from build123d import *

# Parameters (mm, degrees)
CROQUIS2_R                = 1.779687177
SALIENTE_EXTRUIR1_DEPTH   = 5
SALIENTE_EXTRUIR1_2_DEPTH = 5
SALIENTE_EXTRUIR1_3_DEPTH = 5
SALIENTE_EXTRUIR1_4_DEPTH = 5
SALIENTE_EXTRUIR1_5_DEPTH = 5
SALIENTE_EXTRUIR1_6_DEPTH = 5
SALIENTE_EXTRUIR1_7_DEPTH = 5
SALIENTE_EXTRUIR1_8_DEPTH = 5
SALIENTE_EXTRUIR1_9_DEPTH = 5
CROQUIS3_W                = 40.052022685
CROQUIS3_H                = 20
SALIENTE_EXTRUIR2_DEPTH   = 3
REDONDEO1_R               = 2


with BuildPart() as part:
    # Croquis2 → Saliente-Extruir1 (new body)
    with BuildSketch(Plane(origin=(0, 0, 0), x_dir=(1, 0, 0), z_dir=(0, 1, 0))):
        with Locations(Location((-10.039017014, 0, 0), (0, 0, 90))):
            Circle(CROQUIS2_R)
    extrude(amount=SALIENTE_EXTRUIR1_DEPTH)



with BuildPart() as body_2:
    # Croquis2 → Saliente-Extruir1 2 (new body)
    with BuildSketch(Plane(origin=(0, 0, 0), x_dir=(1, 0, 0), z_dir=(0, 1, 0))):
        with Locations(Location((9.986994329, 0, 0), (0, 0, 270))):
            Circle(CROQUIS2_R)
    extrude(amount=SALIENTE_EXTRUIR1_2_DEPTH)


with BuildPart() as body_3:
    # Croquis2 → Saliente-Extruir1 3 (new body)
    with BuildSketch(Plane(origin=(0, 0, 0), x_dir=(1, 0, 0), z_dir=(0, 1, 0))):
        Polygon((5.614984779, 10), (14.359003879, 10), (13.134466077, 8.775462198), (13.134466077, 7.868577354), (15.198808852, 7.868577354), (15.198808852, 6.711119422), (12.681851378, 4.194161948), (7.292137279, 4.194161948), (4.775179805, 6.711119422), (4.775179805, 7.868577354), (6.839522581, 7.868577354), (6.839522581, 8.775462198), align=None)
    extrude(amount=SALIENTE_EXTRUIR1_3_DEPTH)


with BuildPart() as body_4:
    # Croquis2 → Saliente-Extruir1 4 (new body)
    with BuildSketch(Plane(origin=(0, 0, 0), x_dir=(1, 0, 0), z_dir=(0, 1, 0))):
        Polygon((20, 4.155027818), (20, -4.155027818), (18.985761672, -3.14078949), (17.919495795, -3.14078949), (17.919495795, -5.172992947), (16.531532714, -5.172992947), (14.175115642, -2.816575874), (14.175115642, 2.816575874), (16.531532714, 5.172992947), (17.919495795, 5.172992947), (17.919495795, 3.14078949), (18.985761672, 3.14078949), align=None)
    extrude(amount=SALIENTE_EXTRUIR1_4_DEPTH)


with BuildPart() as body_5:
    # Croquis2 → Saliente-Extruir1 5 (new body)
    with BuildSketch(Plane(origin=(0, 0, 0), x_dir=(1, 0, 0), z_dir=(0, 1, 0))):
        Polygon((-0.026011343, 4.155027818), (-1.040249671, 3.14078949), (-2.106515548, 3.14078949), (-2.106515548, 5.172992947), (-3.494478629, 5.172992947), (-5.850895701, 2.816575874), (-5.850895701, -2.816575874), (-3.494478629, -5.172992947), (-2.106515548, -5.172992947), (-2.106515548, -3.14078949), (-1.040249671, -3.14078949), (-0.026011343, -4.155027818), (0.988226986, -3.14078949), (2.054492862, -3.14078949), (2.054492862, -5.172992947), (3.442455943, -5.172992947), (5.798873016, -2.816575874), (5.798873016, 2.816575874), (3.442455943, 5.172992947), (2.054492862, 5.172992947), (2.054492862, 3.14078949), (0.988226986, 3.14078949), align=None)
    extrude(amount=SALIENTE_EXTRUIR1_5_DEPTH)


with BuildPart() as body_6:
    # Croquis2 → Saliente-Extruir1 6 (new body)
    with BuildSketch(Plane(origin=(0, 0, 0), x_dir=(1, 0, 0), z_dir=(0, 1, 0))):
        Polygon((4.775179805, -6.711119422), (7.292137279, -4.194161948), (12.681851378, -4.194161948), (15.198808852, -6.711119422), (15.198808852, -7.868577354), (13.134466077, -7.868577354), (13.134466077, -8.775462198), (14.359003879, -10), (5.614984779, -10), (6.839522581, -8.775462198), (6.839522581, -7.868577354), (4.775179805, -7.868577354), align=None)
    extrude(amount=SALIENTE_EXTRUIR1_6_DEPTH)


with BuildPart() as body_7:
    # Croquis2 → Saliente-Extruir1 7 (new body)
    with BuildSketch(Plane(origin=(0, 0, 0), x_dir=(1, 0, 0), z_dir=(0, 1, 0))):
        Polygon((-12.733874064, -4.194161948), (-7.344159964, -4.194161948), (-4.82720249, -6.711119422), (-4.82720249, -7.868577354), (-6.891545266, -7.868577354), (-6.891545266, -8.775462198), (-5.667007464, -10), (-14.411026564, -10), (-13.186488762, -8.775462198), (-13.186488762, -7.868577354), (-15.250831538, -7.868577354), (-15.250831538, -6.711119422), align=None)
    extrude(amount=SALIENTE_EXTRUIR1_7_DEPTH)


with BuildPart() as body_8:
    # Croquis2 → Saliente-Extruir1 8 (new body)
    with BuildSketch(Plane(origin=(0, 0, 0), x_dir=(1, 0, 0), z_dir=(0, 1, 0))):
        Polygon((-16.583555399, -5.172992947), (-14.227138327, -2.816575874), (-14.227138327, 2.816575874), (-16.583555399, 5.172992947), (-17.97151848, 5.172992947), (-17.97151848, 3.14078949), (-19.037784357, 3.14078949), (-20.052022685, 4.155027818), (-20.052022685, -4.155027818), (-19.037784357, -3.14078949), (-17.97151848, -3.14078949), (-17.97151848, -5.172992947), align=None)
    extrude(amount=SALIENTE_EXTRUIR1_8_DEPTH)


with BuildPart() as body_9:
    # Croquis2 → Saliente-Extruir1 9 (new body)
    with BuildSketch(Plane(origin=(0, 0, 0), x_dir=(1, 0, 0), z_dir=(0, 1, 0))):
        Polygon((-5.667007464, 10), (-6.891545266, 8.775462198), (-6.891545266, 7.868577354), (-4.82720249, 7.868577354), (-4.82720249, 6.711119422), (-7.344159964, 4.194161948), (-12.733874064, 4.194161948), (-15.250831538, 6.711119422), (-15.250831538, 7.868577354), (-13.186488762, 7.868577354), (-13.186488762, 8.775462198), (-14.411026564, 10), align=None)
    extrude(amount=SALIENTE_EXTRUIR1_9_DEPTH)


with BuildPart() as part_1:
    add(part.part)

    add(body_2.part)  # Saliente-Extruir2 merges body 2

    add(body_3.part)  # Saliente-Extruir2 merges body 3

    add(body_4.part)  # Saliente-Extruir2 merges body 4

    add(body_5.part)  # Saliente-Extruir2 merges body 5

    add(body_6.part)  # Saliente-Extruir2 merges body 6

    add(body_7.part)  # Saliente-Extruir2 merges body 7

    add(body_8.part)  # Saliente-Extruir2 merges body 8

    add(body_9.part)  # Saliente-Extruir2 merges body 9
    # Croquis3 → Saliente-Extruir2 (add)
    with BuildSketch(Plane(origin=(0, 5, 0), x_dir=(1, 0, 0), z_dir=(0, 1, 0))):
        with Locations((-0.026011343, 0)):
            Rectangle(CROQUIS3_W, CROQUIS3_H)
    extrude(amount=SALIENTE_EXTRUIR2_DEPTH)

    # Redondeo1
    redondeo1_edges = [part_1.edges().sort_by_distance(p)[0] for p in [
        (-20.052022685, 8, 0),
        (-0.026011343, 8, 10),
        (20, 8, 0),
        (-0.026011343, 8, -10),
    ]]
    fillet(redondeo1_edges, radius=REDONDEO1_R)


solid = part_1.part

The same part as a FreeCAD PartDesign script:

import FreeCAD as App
import Part
import Sketcher
from FreeCAD import Vector
Q = App.Units.Quantity


def edges_at(feature, points):
    """Names of the edges that pass closest to the given points."""
    edges = feature.Shape.Edges
    near = lambda p: min(range(len(edges)), key=lambda i: edges[i].distToShape(Part.Vertex(*p))[0])
    return sorted({f"Edge{near(p) + 1}" for p in points})

doc = App.newDocument("Part")
params = doc.addObject("Spreadsheet::Sheet", "Params")
for row, (alias, value) in enumerate([
    ("pad1_length", "5 mm"),
    ("pad2_length", "5 mm"),
    ("pad3_length", "5 mm"),
    ("pad4_length", "5 mm"),
    ("pad5_length", "5 mm"),
    ("pad6_length", "5 mm"),
    ("pad7_length", "5 mm"),
    ("pad8_length", "5 mm"),
    ("pad9_length", "5 mm"),
    ("sketch10_height", "20 mm"),
    ("pad10_length", "3 mm"),
    ("fillet_radius", "2 mm"),
], start=1):
    params.set(f"A{row}", alias)
    params.set(f"B{row}", "=" + value)
    params.setAlias(f"B{row}", alias)

body = doc.addObject("PartDesign::Body", "Body")

# Sketch on XZ plane
sketch1 = body.newObject("Sketcher::SketchObject", "Sketch")
sketch1.AttachmentSupport = (doc.getObject("XZ_Plane"), [""])
sketch1.MapMode = "FlatFace"
sketch1.addGeometry(Part.Circle(Vector(-10.039017, 0, 0), Vector(0, 0, 1), 1.779687), False)
sketch1.addConstraint(Sketcher.Constraint("PointOnObject", 0, 3, -1))
sketch1.addConstraint(Sketcher.Constraint("Diameter", 0, Q("3.559374 mm")))
sketch1.addConstraint(Sketcher.Constraint("DistanceX", 0, 3, -1, 1, Q("10.039017 mm")))
pad1 = body.newObject("PartDesign::Pad", "Pad")
pad1.Profile = sketch1
pad1.setExpression("Length", "Params.pad1_length")
pad1.Reversed = True
body2 = doc.addObject("PartDesign::Body", "Body001")

# Sketch on XZ plane
sketch2 = body2.newObject("Sketcher::SketchObject", "Sketch001")
sketch2.AttachmentSupport = (doc.getObject("XZ_Plane001"), [""])
sketch2.MapMode = "FlatFace"
sketch2.addGeometry(Part.Circle(Vector(9.986994, 0, 0), Vector(0, 0, 1), 1.779687), False)
sketch2.addConstraint(Sketcher.Constraint("PointOnObject", 0, 3, -1))
sketch2.addConstraint(Sketcher.Constraint("Diameter", 0, Q("3.559374 mm")))
sketch2.addConstraint(Sketcher.Constraint("DistanceX", -1, 1, 0, 3, Q("9.986994 mm")))
pad2 = body2.newObject("PartDesign::Pad", "Pad001")
pad2.Profile = sketch2
pad2.setExpression("Length", "Params.pad2_length")
pad2.Reversed = True
body3 = doc.addObject("PartDesign::Body", "Body002")

# Sketch on XZ plane
sketch3 = body3.newObject("Sketcher::SketchObject", "Sketch002")
sketch3.AttachmentSupport = (doc.getObject("XZ_Plane002"), [""])
sketch3.MapMode = "FlatFace"
sketch3.addGeometry(Part.LineSegment(Vector(14.359004, -10, 0), Vector(5.614985, -10, 0)), False)
sketch3.addGeometry(Part.LineSegment(Vector(5.614985, -10, 0), Vector(6.839523, -8.775462, 0)), False)
sketch3.addGeometry(Part.LineSegment(Vector(6.839523, -8.775462, 0), Vector(6.839523, -7.868577, 0)), False)
sketch3.addGeometry(Part.LineSegment(Vector(6.839523, -7.868577, 0), Vector(4.77518, -7.868577, 0)), False)
sketch3.addGeometry(Part.LineSegment(Vector(4.77518, -7.868577, 0), Vector(4.77518, -6.711119, 0)), False)
sketch3.addGeometry(Part.LineSegment(Vector(4.77518, -6.711119, 0), Vector(7.292137, -4.194162, 0)), False)
sketch3.addGeometry(Part.LineSegment(Vector(7.292137, -4.194162, 0), Vector(12.681851, -4.194162, 0)), False)
sketch3.addGeometry(Part.LineSegment(Vector(12.681851, -4.194162, 0), Vector(15.198809, -6.711119, 0)), False)
sketch3.addGeometry(Part.LineSegment(Vector(15.198809, -6.711119, 0), Vector(15.198809, -7.868577, 0)), False)
sketch3.addGeometry(Part.LineSegment(Vector(15.198809, -7.868577, 0), Vector(13.134466, -7.868577, 0)), False)
sketch3.addGeometry(Part.LineSegment(Vector(13.134466, -7.868577, 0), Vector(13.134466, -8.775462, 0)), False)
sketch3.addGeometry(Part.LineSegment(Vector(13.134466, -8.775462, 0), Vector(14.359004, -10, 0)), False)
sketch3.addConstraint(Sketcher.Constraint("Coincident", 0, 2, 1, 1))
sketch3.addConstraint(Sketcher.Constraint("Coincident", 1, 2, 2, 1))
sketch3.addConstraint(Sketcher.Constraint("Coincident", 2, 2, 3, 1))
sketch3.addConstraint(Sketcher.Constraint("Coincident", 3, 2, 4, 1))
sketch3.addConstraint(Sketcher.Constraint("Coincident", 4, 2, 5, 1))
sketch3.addConstraint(Sketcher.Constraint("Coincident", 5, 2, 6, 1))
sketch3.addConstraint(Sketcher.Constraint("Coincident", 6, 2, 7, 1))
sketch3.addConstraint(Sketcher.Constraint("Coincident", 7, 2, 8, 1))
sketch3.addConstraint(Sketcher.Constraint("Coincident", 8, 2, 9, 1))
sketch3.addConstraint(Sketcher.Constraint("Coincident", 9, 2, 10, 1))
sketch3.addConstraint(Sketcher.Constraint("Coincident", 10, 2, 11, 1))
sketch3.addConstraint(Sketcher.Constraint("Coincident", 11, 2, 0, 1))
sketch3.addConstraint(Sketcher.Constraint("Horizontal", 0))
sketch3.addConstraint(Sketcher.Constraint("Vertical", 2))
sketch3.addConstraint(Sketcher.Constraint("Horizontal", 3))
sketch3.addConstraint(Sketcher.Constraint("Vertical", 4))
sketch3.addConstraint(Sketcher.Constraint("Horizontal", 6))
sketch3.addConstraint(Sketcher.Constraint("Vertical", 8))
sketch3.addConstraint(Sketcher.Constraint("Horizontal", 9))
sketch3.addConstraint(Sketcher.Constraint("Vertical", 10))
sketch3.addConstraint(Sketcher.Constraint("Parallel", 1, 5))
sketch3.addConstraint(Sketcher.Constraint("Perpendicular", 5, 7))
sketch3.addConstraint(Sketcher.Constraint("Parallel", 7, 11))
sketch3.addConstraint(Sketcher.Constraint("Horizontal", 4, 2, 7, 2))
sketch3.addConstraint(Sketcher.Constraint("Horizontal", 3, 2, 8, 2))
sketch3.addConstraint(Sketcher.Constraint("Horizontal", 1, 2, 10, 2))
sketch3.addConstraint(Sketcher.Constraint("Equal", 3, 9))
sketch3.addConstraint(Sketcher.Constraint("Equal", 5, 7))
sketch3.addConstraint(Sketcher.Constraint("DistanceY", 0, 2, -1, 1, Q("10 mm")))
sketch3.addConstraint(Sketcher.Constraint("DistanceX", 0, 2, 0, 1, Q("8.744019 mm")))
sketch3.addConstraint(Sketcher.Constraint("DistanceY", 1, 2, 5, 2, Q("4.5813 mm")))
sketch3.addConstraint(Sketcher.Constraint("DistanceX", 3, 2, 3, 1, Q("2.064343 mm")))
sketch3.addConstraint(Sketcher.Constraint("DistanceX", 6, 1, 6, 2, Q("5.389714 mm")))
sketch3.addConstraint(Sketcher.Constraint("DistanceY", 2, 1, 2, 2, Q("0.906885 mm")))
sketch3.addConstraint(Sketcher.Constraint("DistanceY", 4, 1, 4, 2, Q("1.157458 mm")))
sketch3.addConstraint(Sketcher.Constraint("DistanceX", -1, 1, 3, 2, Q("4.77518 mm")))
pad3 = body3.newObject("PartDesign::Pad", "Pad002")
pad3.Profile = sketch3
pad3.setExpression("Length", "Params.pad3_length")
pad3.Reversed = True
body4 = doc.addObject("PartDesign::Body", "Body003")

# Sketch on XZ plane
sketch4 = body4.newObject("Sketcher::SketchObject", "Sketch003")
sketch4.AttachmentSupport = (doc.getObject("XZ_Plane003"), [""])
sketch4.MapMode = "FlatFace"
sketch4.addGeometry(Part.LineSegment(Vector(20, 4.155028, 0), Vector(20, -4.155028, 0)), False)
sketch4.addGeometry(Part.LineSegment(Vector(20, -4.155028, 0), Vector(18.985762, -3.140789, 0)), False)
sketch4.addGeometry(Part.LineSegment(Vector(18.985762, -3.140789, 0), Vector(17.919496, -3.140789, 0)), False)
sketch4.addGeometry(Part.LineSegment(Vector(17.919496, -3.140789, 0), Vector(17.919496, -5.172993, 0)), False)
sketch4.addGeometry(Part.LineSegment(Vector(17.919496, -5.172993, 0), Vector(16.531533, -5.172993, 0)), False)
sketch4.addGeometry(Part.LineSegment(Vector(16.531533, -5.172993, 0), Vector(14.175116, -2.816576, 0)), False)
sketch4.addGeometry(Part.LineSegment(Vector(14.175116, -2.816576, 0), Vector(14.175116, 2.816576, 0)), False)
sketch4.addGeometry(Part.LineSegment(Vector(14.175116, 2.816576, 0), Vector(16.531533, 5.172993, 0)), False)
sketch4.addGeometry(Part.LineSegment(Vector(16.531533, 5.172993, 0), Vector(17.919496, 5.172993, 0)), False)
sketch4.addGeometry(Part.LineSegment(Vector(17.919496, 5.172993, 0), Vector(17.919496, 3.140789, 0)), False)
sketch4.addGeometry(Part.LineSegment(Vector(17.919496, 3.140789, 0), Vector(18.985762, 3.140789, 0)), False)
sketch4.addGeometry(Part.LineSegment(Vector(18.985762, 3.140789, 0), Vector(20, 4.155028, 0)), False)
sketch4.addConstraint(Sketcher.Constraint("Coincident", 0, 2, 1, 1))
sketch4.addConstraint(Sketcher.Constraint("Coincident", 1, 2, 2, 1))
sketch4.addConstraint(Sketcher.Constraint("Coincident", 2, 2, 3, 1))
sketch4.addConstraint(Sketcher.Constraint("Coincident", 3, 2, 4, 1))
sketch4.addConstraint(Sketcher.Constraint("Coincident", 4, 2, 5, 1))
sketch4.addConstraint(Sketcher.Constraint("Coincident", 5, 2, 6, 1))
sketch4.addConstraint(Sketcher.Constraint("Coincident", 6, 2, 7, 1))
sketch4.addConstraint(Sketcher.Constraint("Coincident", 7, 2, 8, 1))
sketch4.addConstraint(Sketcher.Constraint("Coincident", 8, 2, 9, 1))
sketch4.addConstraint(Sketcher.Constraint("Coincident", 9, 2, 10, 1))
sketch4.addConstraint(Sketcher.Constraint("Coincident", 10, 2, 11, 1))
sketch4.addConstraint(Sketcher.Constraint("Coincident", 11, 2, 0, 1))
sketch4.addConstraint(Sketcher.Constraint("Vertical", 0))
sketch4.addConstraint(Sketcher.Constraint("Horizontal", 2))
sketch4.addConstraint(Sketcher.Constraint("Vertical", 3))
sketch4.addConstraint(Sketcher.Constraint("Horizontal", 4))
sketch4.addConstraint(Sketcher.Constraint("Vertical", 6))
sketch4.addConstraint(Sketcher.Constraint("Horizontal", 8))
sketch4.addConstraint(Sketcher.Constraint("Vertical", 9))
sketch4.addConstraint(Sketcher.Constraint("Horizontal", 10))
sketch4.addConstraint(Sketcher.Constraint("Symmetric", 4, 2, 7, 2, -1))
sketch4.addConstraint(Sketcher.Constraint("Symmetric", 2, 2, 9, 2, -1))
sketch4.addConstraint(Sketcher.Constraint("Parallel", 1, 5))
sketch4.addConstraint(Sketcher.Constraint("Perpendicular", 5, 7))
sketch4.addConstraint(Sketcher.Constraint("Parallel", 7, 11))
sketch4.addConstraint(Sketcher.Constraint("Vertical", 1, 2, 10, 2))
sketch4.addConstraint(Sketcher.Constraint("Equal", 5, 7))
sketch4.addConstraint(Sketcher.Constraint("DistanceX", -1, 1, 0, 2, Q("20 mm")))
sketch4.addConstraint(Sketcher.Constraint("DistanceY", 6, 1, 6, 2, Q("5.633152 mm")))
sketch4.addConstraint(Sketcher.Constraint("Distance", 1, Q("1.43435 mm")))
sketch4.addConstraint(Sketcher.Constraint("DistanceX", 2, 2, 2, 1, Q("1.066266 mm")))
sketch4.addConstraint(Sketcher.Constraint("DistanceX", 4, 2, 4, 1, Q("1.387963 mm")))
sketch4.addConstraint(Sketcher.Constraint("DistanceY", 0, 2, 0, 1, Q("8.310056 mm")))
sketch4.addConstraint(Sketcher.Constraint("DistanceY", 3, 2, 3, 1, Q("2.032203 mm")))
pad4 = body4.newObject("PartDesign::Pad", "Pad003")
pad4.Profile = sketch4
pad4.setExpression("Length", "Params.pad4_length")
pad4.Reversed = True
body5 = doc.addObject("PartDesign::Body", "Body004")

# Sketch on XZ plane
sketch5 = body5.newObject("Sketcher::SketchObject", "Sketch004")
sketch5.AttachmentSupport = (doc.getObject("XZ_Plane004"), [""])
sketch5.MapMode = "FlatFace"
sketch5.addGeometry(Part.LineSegment(Vector(-0.026011, -4.155028, 0), Vector(-1.04025, -3.140789, 0)), False)
sketch5.addGeometry(Part.LineSegment(Vector(-1.04025, -3.140789, 0), Vector(-2.106516, -3.140789, 0)), False)
sketch5.addGeometry(Part.LineSegment(Vector(-2.106516, -3.140789, 0), Vector(-2.106516, -5.172993, 0)), False)
sketch5.addGeometry(Part.LineSegment(Vector(-2.106516, -5.172993, 0), Vector(-3.494479, -5.172993, 0)), False)
sketch5.addGeometry(Part.LineSegment(Vector(-3.494479, -5.172993, 0), Vector(-5.850896, -2.816576, 0)), False)
sketch5.addGeometry(Part.LineSegment(Vector(-5.850896, -2.816576, 0), Vector(-5.850896, 2.816576, 0)), False)
sketch5.addGeometry(Part.LineSegment(Vector(-5.850896, 2.816576, 0), Vector(-3.494479, 5.172993, 0)), False)
sketch5.addGeometry(Part.LineSegment(Vector(-3.494479, 5.172993, 0), Vector(-2.106516, 5.172993, 0)), False)
sketch5.addGeometry(Part.LineSegment(Vector(-2.106516, 5.172993, 0), Vector(-2.106516, 3.140789, 0)), False)
sketch5.addGeometry(Part.LineSegment(Vector(-2.106516, 3.140789, 0), Vector(-1.04025, 3.140789, 0)), False)
sketch5.addGeometry(Part.LineSegment(Vector(-1.04025, 3.140789, 0), Vector(-0.026011, 4.155028, 0)), False)
sketch5.addGeometry(Part.LineSegment(Vector(-0.026011, 4.155028, 0), Vector(0.988227, 3.140789, 0)), False)
sketch5.addGeometry(Part.LineSegment(Vector(0.988227, 3.140789, 0), Vector(2.054493, 3.140789, 0)), False)
sketch5.addGeometry(Part.LineSegment(Vector(2.054493, 3.140789, 0), Vector(2.054493, 5.172993, 0)), False)
sketch5.addGeometry(Part.LineSegment(Vector(2.054493, 5.172993, 0), Vector(3.442456, 5.172993, 0)), False)
sketch5.addGeometry(Part.LineSegment(Vector(3.442456, 5.172993, 0), Vector(5.798873, 2.816576, 0)), False)
sketch5.addGeometry(Part.LineSegment(Vector(5.798873, 2.816576, 0), Vector(5.798873, -2.816576, 0)), False)
sketch5.addGeometry(Part.LineSegment(Vector(5.798873, -2.816576, 0), Vector(3.442456, -5.172993, 0)), False)
sketch5.addGeometry(Part.LineSegment(Vector(3.442456, -5.172993, 0), Vector(2.054493, -5.172993, 0)), False)
sketch5.addGeometry(Part.LineSegment(Vector(2.054493, -5.172993, 0), Vector(2.054493, -3.140789, 0)), False)
sketch5.addGeometry(Part.LineSegment(Vector(2.054493, -3.140789, 0), Vector(0.988227, -3.140789, 0)), False)
sketch5.addGeometry(Part.LineSegment(Vector(0.988227, -3.140789, 0), Vector(-0.026011, -4.155028, 0)), False)
sketch5.addConstraint(Sketcher.Constraint("Coincident", 0, 2, 1, 1))
sketch5.addConstraint(Sketcher.Constraint("Coincident", 1, 2, 2, 1))
sketch5.addConstraint(Sketcher.Constraint("Coincident", 2, 2, 3, 1))
sketch5.addConstraint(Sketcher.Constraint("Coincident", 3, 2, 4, 1))
sketch5.addConstraint(Sketcher.Constraint("Coincident", 4, 2, 5, 1))
sketch5.addConstraint(Sketcher.Constraint("Coincident", 5, 2, 6, 1))
sketch5.addConstraint(Sketcher.Constraint("Coincident", 6, 2, 7, 1))
sketch5.addConstraint(Sketcher.Constraint("Coincident", 7, 2, 8, 1))
sketch5.addConstraint(Sketcher.Constraint("Coincident", 8, 2, 9, 1))
sketch5.addConstraint(Sketcher.Constraint("Coincident", 9, 2, 10, 1))
sketch5.addConstraint(Sketcher.Constraint("Coincident", 10, 2, 11, 1))
sketch5.addConstraint(Sketcher.Constraint("Coincident", 11, 2, 12, 1))
sketch5.addConstraint(Sketcher.Constraint("Coincident", 12, 2, 13, 1))
sketch5.addConstraint(Sketcher.Constraint("Coincident", 13, 2, 14, 1))
sketch5.addConstraint(Sketcher.Constraint("Coincident", 14, 2, 15, 1))
sketch5.addConstraint(Sketcher.Constraint("Coincident", 15, 2, 16, 1))
sketch5.addConstraint(Sketcher.Constraint("Coincident", 16, 2, 17, 1))
sketch5.addConstraint(Sketcher.Constraint("Coincident", 17, 2, 18, 1))
sketch5.addConstraint(Sketcher.Constraint("Coincident", 18, 2, 19, 1))
sketch5.addConstraint(Sketcher.Constraint("Coincident", 19, 2, 20, 1))
sketch5.addConstraint(Sketcher.Constraint("Coincident", 20, 2, 21, 1))
sketch5.addConstraint(Sketcher.Constraint("Coincident", 21, 2, 0, 1))
sketch5.addConstraint(Sketcher.Constraint("Horizontal", 1))
sketch5.addConstraint(Sketcher.Constraint("Vertical", 2))
sketch5.addConstraint(Sketcher.Constraint("Horizontal", 3))
sketch5.addConstraint(Sketcher.Constraint("Vertical", 5))
sketch5.addConstraint(Sketcher.Constraint("Horizontal", 7))
sketch5.addConstraint(Sketcher.Constraint("Vertical", 8))
sketch5.addConstraint(Sketcher.Constraint("Horizontal", 9))
sketch5.addConstraint(Sketcher.Constraint("Horizontal", 12))
sketch5.addConstraint(Sketcher.Constraint("Vertical", 13))
sketch5.addConstraint(Sketcher.Constraint("Horizontal", 14))
sketch5.addConstraint(Sketcher.Constraint("Vertical", 16))
sketch5.addConstraint(Sketcher.Constraint("Horizontal", 18))
sketch5.addConstraint(Sketcher.Constraint("Vertical", 19))
sketch5.addConstraint(Sketcher.Constraint("Horizontal", 20))
sketch5.addConstraint(Sketcher.Constraint("Symmetric", 3, 2, 6, 2, -1))
sketch5.addConstraint(Sketcher.Constraint("Symmetric", 1, 2, 8, 2, -1))
sketch5.addConstraint(Sketcher.Constraint("Symmetric", 14, 2, 17, 2, -1))
sketch5.addConstraint(Sketcher.Constraint("Symmetric", 12, 2, 19, 2, -1))
sketch5.addConstraint(Sketcher.Constraint("Symmetric", 10, 2, 21, 2, -1))
sketch5.addConstraint(Sketcher.Constraint("Parallel", 0, 4))
sketch5.addConstraint(Sketcher.Constraint("Perpendicular", 4, 6))
sketch5.addConstraint(Sketcher.Constraint("Parallel", 6, 10))
sketch5.addConstraint(Sketcher.Constraint("Perpendicular", 10, 11))
sketch5.addConstraint(Sketcher.Constraint("Parallel", 11, 15))
sketch5.addConstraint(Sketcher.Constraint("Perpendicular", 15, 17))
sketch5.addConstraint(Sketcher.Constraint("Parallel", 17, 21))
sketch5.addConstraint(Sketcher.Constraint("Horizontal", 9, 2, 11, 2))
sketch5.addConstraint(Sketcher.Constraint("Horizontal", 7, 2, 13, 2))
sketch5.addConstraint(Sketcher.Constraint("Horizontal", 5, 2, 15, 2))
sketch5.addConstraint(Sketcher.Constraint("Horizontal", 4, 2, 16, 2))
sketch5.addConstraint(Sketcher.Constraint("Equal", 9, 12))
sketch5.addConstraint(Sketcher.Constraint("Equal", 7, 14))
sketch5.addConstraint(Sketcher.Constraint("DistanceY", 5, 1, 5, 2, Q("5.633152 mm")))
sketch5.addConstraint(Sketcher.Constraint("Distance", 0, Q("1.43435 mm")))
sketch5.addConstraint(Sketcher.Constraint("DistanceX", 1, 2, 1, 1, Q("1.066266 mm")))
sketch5.addConstraint(Sketcher.Constraint("DistanceX", 3, 2, 3, 1, Q("1.387963 mm")))
sketch5.addConstraint(Sketcher.Constraint("DistanceY", 2, 2, 2, 1, Q("2.032203 mm")))
sketch5.addConstraint(Sketcher.Constraint("DistanceX", 0, 2, -1, 1, Q("1.04025 mm")))
sketch5.addConstraint(Sketcher.Constraint("DistanceY", 0, 2, -1, 1, Q("3.140789 mm")))
pad5 = body5.newObject("PartDesign::Pad", "Pad004")
pad5.Profile = sketch5
pad5.setExpression("Length", "Params.pad5_length")
pad5.Reversed = True
body6 = doc.addObject("PartDesign::Body", "Body005")

# Sketch on XZ plane
sketch6 = body6.newObject("Sketcher::SketchObject", "Sketch005")
sketch6.AttachmentSupport = (doc.getObject("XZ_Plane005"), [""])
sketch6.MapMode = "FlatFace"
sketch6.addGeometry(Part.LineSegment(Vector(7.292137, 4.194162, 0), Vector(4.77518, 6.711119, 0)), False)
sketch6.addGeometry(Part.LineSegment(Vector(4.77518, 6.711119, 0), Vector(4.77518, 7.868577, 0)), False)
sketch6.addGeometry(Part.LineSegment(Vector(4.77518, 7.868577, 0), Vector(6.839523, 7.868577, 0)), False)
sketch6.addGeometry(Part.LineSegment(Vector(6.839523, 7.868577, 0), Vector(6.839523, 8.775462, 0)), False)
sketch6.addGeometry(Part.LineSegment(Vector(6.839523, 8.775462, 0), Vector(5.614985, 10, 0)), False)
sketch6.addGeometry(Part.LineSegment(Vector(5.614985, 10, 0), Vector(14.359004, 10, 0)), False)
sketch6.addGeometry(Part.LineSegment(Vector(14.359004, 10, 0), Vector(13.134466, 8.775462, 0)), False)
sketch6.addGeometry(Part.LineSegment(Vector(13.134466, 8.775462, 0), Vector(13.134466, 7.868577, 0)), False)
sketch6.addGeometry(Part.LineSegment(Vector(13.134466, 7.868577, 0), Vector(15.198809, 7.868577, 0)), False)
sketch6.addGeometry(Part.LineSegment(Vector(15.198809, 7.868577, 0), Vector(15.198809, 6.711119, 0)), False)
sketch6.addGeometry(Part.LineSegment(Vector(15.198809, 6.711119, 0), Vector(12.681851, 4.194162, 0)), False)
sketch6.addGeometry(Part.LineSegment(Vector(12.681851, 4.194162, 0), Vector(7.292137, 4.194162, 0)), False)
sketch6.addConstraint(Sketcher.Constraint("Coincident", 0, 2, 1, 1))
sketch6.addConstraint(Sketcher.Constraint("Coincident", 1, 2, 2, 1))
sketch6.addConstraint(Sketcher.Constraint("Coincident", 2, 2, 3, 1))
sketch6.addConstraint(Sketcher.Constraint("Coincident", 3, 2, 4, 1))
sketch6.addConstraint(Sketcher.Constraint("Coincident", 4, 2, 5, 1))
sketch6.addConstraint(Sketcher.Constraint("Coincident", 5, 2, 6, 1))
sketch6.addConstraint(Sketcher.Constraint("Coincident", 6, 2, 7, 1))
sketch6.addConstraint(Sketcher.Constraint("Coincident", 7, 2, 8, 1))
sketch6.addConstraint(Sketcher.Constraint("Coincident", 8, 2, 9, 1))
sketch6.addConstraint(Sketcher.Constraint("Coincident", 9, 2, 10, 1))
sketch6.addConstraint(Sketcher.Constraint("Coincident", 10, 2, 11, 1))
sketch6.addConstraint(Sketcher.Constraint("Coincident", 11, 2, 0, 1))
sketch6.addConstraint(Sketcher.Constraint("Vertical", 1))
sketch6.addConstraint(Sketcher.Constraint("Horizontal", 2))
sketch6.addConstraint(Sketcher.Constraint("Vertical", 3))
sketch6.addConstraint(Sketcher.Constraint("Horizontal", 5))
sketch6.addConstraint(Sketcher.Constraint("Vertical", 7))
sketch6.addConstraint(Sketcher.Constraint("Horizontal", 8))
sketch6.addConstraint(Sketcher.Constraint("Vertical", 9))
sketch6.addConstraint(Sketcher.Constraint("Horizontal", 11))
sketch6.addConstraint(Sketcher.Constraint("Parallel", 0, 4))
sketch6.addConstraint(Sketcher.Constraint("Perpendicular", 4, 6))
sketch6.addConstraint(Sketcher.Constraint("Parallel", 6, 10))
sketch6.addConstraint(Sketcher.Constraint("Horizontal", 3, 2, 6, 2))
sketch6.addConstraint(Sketcher.Constraint("Horizontal", 2, 2, 7, 2))
sketch6.addConstraint(Sketcher.Constraint("Horizontal", 0, 2, 9, 2))
sketch6.addConstraint(Sketcher.Constraint("Equal", 2, 8))
sketch6.addConstraint(Sketcher.Constraint("Equal", 4, 6))
sketch6.addConstraint(Sketcher.Constraint("DistanceY", -1, 1, 4, 2, Q("10 mm")))
sketch6.addConstraint(Sketcher.Constraint("DistanceX", 5, 1, 5, 2, Q("8.744019 mm")))
sketch6.addConstraint(Sketcher.Constraint("DistanceY", 10, 2, 6, 2, Q("4.5813 mm")))
sketch6.addConstraint(Sketcher.Constraint("DistanceX", 2, 1, 2, 2, Q("2.064343 mm")))
sketch6.addConstraint(Sketcher.Constraint("DistanceX", 11, 2, 11, 1, Q("5.389714 mm")))
sketch6.addConstraint(Sketcher.Constraint("DistanceY", 1, 1, 1, 2, Q("1.157458 mm")))
sketch6.addConstraint(Sketcher.Constraint("DistanceY", 3, 1, 3, 2, Q("0.906885 mm")))
sketch6.addConstraint(Sketcher.Constraint("DistanceX", -1, 1, 0, 2, Q("4.77518 mm")))
pad6 = body6.newObject("PartDesign::Pad", "Pad005")
pad6.Profile = sketch6
pad6.setExpression("Length", "Params.pad6_length")
pad6.Reversed = True
body7 = doc.addObject("PartDesign::Body", "Body006")

# Sketch on XZ plane
sketch7 = body7.newObject("Sketcher::SketchObject", "Sketch006")
sketch7.AttachmentSupport = (doc.getObject("XZ_Plane006"), [""])
sketch7.MapMode = "FlatFace"
sketch7.addGeometry(Part.LineSegment(Vector(-7.34416, 4.194162, 0), Vector(-12.733874, 4.194162, 0)), False)
sketch7.addGeometry(Part.LineSegment(Vector(-12.733874, 4.194162, 0), Vector(-15.250832, 6.711119, 0)), False)
sketch7.addGeometry(Part.LineSegment(Vector(-15.250832, 6.711119, 0), Vector(-15.250832, 7.868577, 0)), False)
sketch7.addGeometry(Part.LineSegment(Vector(-15.250832, 7.868577, 0), Vector(-13.186489, 7.868577, 0)), False)
sketch7.addGeometry(Part.LineSegment(Vector(-13.186489, 7.868577, 0), Vector(-13.186489, 8.775462, 0)), False)
sketch7.addGeometry(Part.LineSegment(Vector(-13.186489, 8.775462, 0), Vector(-14.411027, 10, 0)), False)
sketch7.addGeometry(Part.LineSegment(Vector(-14.411027, 10, 0), Vector(-5.667007, 10, 0)), False)
sketch7.addGeometry(Part.LineSegment(Vector(-5.667007, 10, 0), Vector(-6.891545, 8.775462, 0)), False)
sketch7.addGeometry(Part.LineSegment(Vector(-6.891545, 8.775462, 0), Vector(-6.891545, 7.868577, 0)), False)
sketch7.addGeometry(Part.LineSegment(Vector(-6.891545, 7.868577, 0), Vector(-4.827202, 7.868577, 0)), False)
sketch7.addGeometry(Part.LineSegment(Vector(-4.827202, 7.868577, 0), Vector(-4.827202, 6.711119, 0)), False)
sketch7.addGeometry(Part.LineSegment(Vector(-4.827202, 6.711119, 0), Vector(-7.34416, 4.194162, 0)), False)
sketch7.addConstraint(Sketcher.Constraint("Coincident", 0, 2, 1, 1))
sketch7.addConstraint(Sketcher.Constraint("Coincident", 1, 2, 2, 1))
sketch7.addConstraint(Sketcher.Constraint("Coincident", 2, 2, 3, 1))
sketch7.addConstraint(Sketcher.Constraint("Coincident", 3, 2, 4, 1))
sketch7.addConstraint(Sketcher.Constraint("Coincident", 4, 2, 5, 1))
sketch7.addConstraint(Sketcher.Constraint("Coincident", 5, 2, 6, 1))
sketch7.addConstraint(Sketcher.Constraint("Coincident", 6, 2, 7, 1))
sketch7.addConstraint(Sketcher.Constraint("Coincident", 7, 2, 8, 1))
sketch7.addConstraint(Sketcher.Constraint("Coincident", 8, 2, 9, 1))
sketch7.addConstraint(Sketcher.Constraint("Coincident", 9, 2, 10, 1))
sketch7.addConstraint(Sketcher.Constraint("Coincident", 10, 2, 11, 1))
sketch7.addConstraint(Sketcher.Constraint("Coincident", 11, 2, 0, 1))
sketch7.addConstraint(Sketcher.Constraint("Horizontal", 0))
sketch7.addConstraint(Sketcher.Constraint("Vertical", 2))
sketch7.addConstraint(Sketcher.Constraint("Horizontal", 3))
sketch7.addConstraint(Sketcher.Constraint("Vertical", 4))
sketch7.addConstraint(Sketcher.Constraint("Horizontal", 6))
sketch7.addConstraint(Sketcher.Constraint("Vertical", 8))
sketch7.addConstraint(Sketcher.Constraint("Horizontal", 9))
sketch7.addConstraint(Sketcher.Constraint("Vertical", 10))
sketch7.addConstraint(Sketcher.Constraint("Parallel", 1, 5))
sketch7.addConstraint(Sketcher.Constraint("Perpendicular", 5, 7))
sketch7.addConstraint(Sketcher.Constraint("Parallel", 7, 11))
sketch7.addConstraint(Sketcher.Constraint("Horizontal", 4, 2, 7, 2))
sketch7.addConstraint(Sketcher.Constraint("Horizontal", 3, 2, 8, 2))
sketch7.addConstraint(Sketcher.Constraint("Horizontal", 1, 2, 10, 2))
sketch7.addConstraint(Sketcher.Constraint("Equal", 3, 9))
sketch7.addConstraint(Sketcher.Constraint("Equal", 5, 7))
sketch7.addConstraint(Sketcher.Constraint("DistanceY", -1, 1, 5, 2, Q("10 mm")))
sketch7.addConstraint(Sketcher.Constraint("DistanceX", 6, 1, 6, 2, Q("8.744019 mm")))
sketch7.addConstraint(Sketcher.Constraint("DistanceY", 0, 2, 4, 2, Q("4.5813 mm")))
sketch7.addConstraint(Sketcher.Constraint("DistanceX", 0, 2, 0, 1, Q("5.389714 mm")))
sketch7.addConstraint(Sketcher.Constraint("DistanceX", 3, 1, 3, 2, Q("2.064343 mm")))
sketch7.addConstraint(Sketcher.Constraint("DistanceY", 2, 1, 2, 2, Q("1.157458 mm")))
sketch7.addConstraint(Sketcher.Constraint("DistanceY", 4, 1, 4, 2, Q("0.906885 mm")))
sketch7.addConstraint(Sketcher.Constraint("DistanceX", 1, 2, -1, 1, Q("15.250832 mm")))
pad7 = body7.newObject("PartDesign::Pad", "Pad006")
pad7.Profile = sketch7
pad7.setExpression("Length", "Params.pad7_length")
pad7.Reversed = True
body8 = doc.addObject("PartDesign::Body", "Body007")

# Sketch on XZ plane
sketch8 = body8.newObject("Sketcher::SketchObject", "Sketch007")
sketch8.AttachmentSupport = (doc.getObject("XZ_Plane007"), [""])
sketch8.MapMode = "FlatFace"
sketch8.addGeometry(Part.LineSegment(Vector(-16.583555, 5.172993, 0), Vector(-14.227138, 2.816576, 0)), False)
sketch8.addGeometry(Part.LineSegment(Vector(-14.227138, 2.816576, 0), Vector(-14.227138, -2.816576, 0)), False)
sketch8.addGeometry(Part.LineSegment(Vector(-14.227138, -2.816576, 0), Vector(-16.583555, -5.172993, 0)), False)
sketch8.addGeometry(Part.LineSegment(Vector(-16.583555, -5.172993, 0), Vector(-17.971518, -5.172993, 0)), False)
sketch8.addGeometry(Part.LineSegment(Vector(-17.971518, -5.172993, 0), Vector(-17.971518, -3.140789, 0)), False)
sketch8.addGeometry(Part.LineSegment(Vector(-17.971518, -3.140789, 0), Vector(-19.037784, -3.140789, 0)), False)
sketch8.addGeometry(Part.LineSegment(Vector(-19.037784, -3.140789, 0), Vector(-20.052023, -4.155028, 0)), False)
sketch8.addGeometry(Part.LineSegment(Vector(-20.052023, -4.155028, 0), Vector(-20.052023, 4.155028, 0)), False)
sketch8.addGeometry(Part.LineSegment(Vector(-20.052023, 4.155028, 0), Vector(-19.037784, 3.140789, 0)), False)
sketch8.addGeometry(Part.LineSegment(Vector(-19.037784, 3.140789, 0), Vector(-17.971518, 3.140789, 0)), False)
sketch8.addGeometry(Part.LineSegment(Vector(-17.971518, 3.140789, 0), Vector(-17.971518, 5.172993, 0)), False)
sketch8.addGeometry(Part.LineSegment(Vector(-17.971518, 5.172993, 0), Vector(-16.583555, 5.172993, 0)), False)
sketch8.addConstraint(Sketcher.Constraint("Coincident", 0, 2, 1, 1))
sketch8.addConstraint(Sketcher.Constraint("Coincident", 1, 2, 2, 1))
sketch8.addConstraint(Sketcher.Constraint("Coincident", 2, 2, 3, 1))
sketch8.addConstraint(Sketcher.Constraint("Coincident", 3, 2, 4, 1))
sketch8.addConstraint(Sketcher.Constraint("Coincident", 4, 2, 5, 1))
sketch8.addConstraint(Sketcher.Constraint("Coincident", 5, 2, 6, 1))
sketch8.addConstraint(Sketcher.Constraint("Coincident", 6, 2, 7, 1))
sketch8.addConstraint(Sketcher.Constraint("Coincident", 7, 2, 8, 1))
sketch8.addConstraint(Sketcher.Constraint("Coincident", 8, 2, 9, 1))
sketch8.addConstraint(Sketcher.Constraint("Coincident", 9, 2, 10, 1))
sketch8.addConstraint(Sketcher.Constraint("Coincident", 10, 2, 11, 1))
sketch8.addConstraint(Sketcher.Constraint("Coincident", 11, 2, 0, 1))
sketch8.addConstraint(Sketcher.Constraint("Vertical", 1))
sketch8.addConstraint(Sketcher.Constraint("Horizontal", 3))
sketch8.addConstraint(Sketcher.Constraint("Vertical", 4))
sketch8.addConstraint(Sketcher.Constraint("Horizontal", 5))
sketch8.addConstraint(Sketcher.Constraint("Vertical", 7))
sketch8.addConstraint(Sketcher.Constraint("Horizontal", 9))
sketch8.addConstraint(Sketcher.Constraint("Vertical", 10))
sketch8.addConstraint(Sketcher.Constraint("Horizontal", 11))
sketch8.addConstraint(Sketcher.Constraint("Symmetric", 5, 2, 8, 2, -1))
sketch8.addConstraint(Sketcher.Constraint("Symmetric", 3, 2, 10, 2, -1))
sketch8.addConstraint(Sketcher.Constraint("Perpendicular", 0, 2))
sketch8.addConstraint(Sketcher.Constraint("Parallel", 2, 6))
sketch8.addConstraint(Sketcher.Constraint("Perpendicular", 6, 8))
sketch8.addConstraint(Sketcher.Constraint("Vertical", 2, 2, 11, 2))
sketch8.addConstraint(Sketcher.Constraint("Equal", 0, 2))
sketch8.addConstraint(Sketcher.Constraint("DistanceY", 1, 2, 1, 1, Q("5.633152 mm")))
sketch8.addConstraint(Sketcher.Constraint("Distance", 6, Q("1.43435 mm")))
sketch8.addConstraint(Sketcher.Constraint("DistanceX", 3, 2, 3, 1, Q("1.387963 mm")))
sketch8.addConstraint(Sketcher.Constraint("DistanceX", 5, 2, 5, 1, Q("1.066266 mm")))
sketch8.addConstraint(Sketcher.Constraint("DistanceY", 4, 1, 4, 2, Q("2.032203 mm")))
sketch8.addConstraint(Sketcher.Constraint("DistanceY", 7, 1, 7, 2, Q("8.310056 mm")))
sketch8.addConstraint(Sketcher.Constraint("DistanceX", 0, 2, -1, 1, Q("14.227138 mm")))
pad8 = body8.newObject("PartDesign::Pad", "Pad007")
pad8.Profile = sketch8
pad8.setExpression("Length", "Params.pad8_length")
pad8.Reversed = True
body9 = doc.addObject("PartDesign::Body", "Body008")

# Sketch on XZ plane
sketch9 = body9.newObject("Sketcher::SketchObject", "Sketch008")
sketch9.AttachmentSupport = (doc.getObject("XZ_Plane008"), [""])
sketch9.MapMode = "FlatFace"
sketch9.addGeometry(Part.LineSegment(Vector(-6.891545, -8.775462, 0), Vector(-5.667007, -10, 0)), False)
sketch9.addGeometry(Part.LineSegment(Vector(-5.667007, -10, 0), Vector(-14.411027, -10, 0)), False)
sketch9.addGeometry(Part.LineSegment(Vector(-14.411027, -10, 0), Vector(-13.186489, -8.775462, 0)), False)
sketch9.addGeometry(Part.LineSegment(Vector(-13.186489, -8.775462, 0), Vector(-13.186489, -7.868577, 0)), False)
sketch9.addGeometry(Part.LineSegment(Vector(-13.186489, -7.868577, 0), Vector(-15.250832, -7.868577, 0)), False)
sketch9.addGeometry(Part.LineSegment(Vector(-15.250832, -7.868577, 0), Vector(-15.250832, -6.711119, 0)), False)
sketch9.addGeometry(Part.LineSegment(Vector(-15.250832, -6.711119, 0), Vector(-12.733874, -4.194162, 0)), False)
sketch9.addGeometry(Part.LineSegment(Vector(-12.733874, -4.194162, 0), Vector(-7.34416, -4.194162, 0)), False)
sketch9.addGeometry(Part.LineSegment(Vector(-7.34416, -4.194162, 0), Vector(-4.827202, -6.711119, 0)), False)
sketch9.addGeometry(Part.LineSegment(Vector(-4.827202, -6.711119, 0), Vector(-4.827202, -7.868577, 0)), False)
sketch9.addGeometry(Part.LineSegment(Vector(-4.827202, -7.868577, 0), Vector(-6.891545, -7.868577, 0)), False)
sketch9.addGeometry(Part.LineSegment(Vector(-6.891545, -7.868577, 0), Vector(-6.891545, -8.775462, 0)), False)
sketch9.addConstraint(Sketcher.Constraint("Coincident", 0, 2, 1, 1))
sketch9.addConstraint(Sketcher.Constraint("Coincident", 1, 2, 2, 1))
sketch9.addConstraint(Sketcher.Constraint("Coincident", 2, 2, 3, 1))
sketch9.addConstraint(Sketcher.Constraint("Coincident", 3, 2, 4, 1))
sketch9.addConstraint(Sketcher.Constraint("Coincident", 4, 2, 5, 1))
sketch9.addConstraint(Sketcher.Constraint("Coincident", 5, 2, 6, 1))
sketch9.addConstraint(Sketcher.Constraint("Coincident", 6, 2, 7, 1))
sketch9.addConstraint(Sketcher.Constraint("Coincident", 7, 2, 8, 1))
sketch9.addConstraint(Sketcher.Constraint("Coincident", 8, 2, 9, 1))
sketch9.addConstraint(Sketcher.Constraint("Coincident", 9, 2, 10, 1))
sketch9.addConstraint(Sketcher.Constraint("Coincident", 10, 2, 11, 1))
sketch9.addConstraint(Sketcher.Constraint("Coincident", 11, 2, 0, 1))
sketch9.addConstraint(Sketcher.Constraint("Horizontal", 1))
sketch9.addConstraint(Sketcher.Constraint("Vertical", 3))
sketch9.addConstraint(Sketcher.Constraint("Horizontal", 4))
sketch9.addConstraint(Sketcher.Constraint("Vertical", 5))
sketch9.addConstraint(Sketcher.Constraint("Horizontal", 7))
sketch9.addConstraint(Sketcher.Constraint("Vertical", 9))
sketch9.addConstraint(Sketcher.Constraint("Horizontal", 10))
sketch9.addConstraint(Sketcher.Constraint("Vertical", 11))
sketch9.addConstraint(Sketcher.Constraint("Perpendicular", 0, 2))
sketch9.addConstraint(Sketcher.Constraint("Parallel", 2, 6))
sketch9.addConstraint(Sketcher.Constraint("Perpendicular", 6, 8))
sketch9.addConstraint(Sketcher.Constraint("Horizontal", 5, 2, 8, 2))
sketch9.addConstraint(Sketcher.Constraint("Horizontal", 4, 2, 9, 2))
sketch9.addConstraint(Sketcher.Constraint("Horizontal", 2, 2, 11, 2))
sketch9.addConstraint(Sketcher.Constraint("Equal", 4, 10))
sketch9.addConstraint(Sketcher.Constraint("Equal", 0, 2))
sketch9.addConstraint(Sketcher.Constraint("DistanceY", 0, 2, -1, 1, Q("10 mm")))
sketch9.addConstraint(Sketcher.Constraint("DistanceX", 1, 2, 1, 1, Q("8.744019 mm")))
sketch9.addConstraint(Sketcher.Constraint("DistanceY", 2, 2, 6, 2, Q("4.5813 mm")))
sketch9.addConstraint(Sketcher.Constraint("DistanceX", 4, 2, 4, 1, Q("2.064343 mm")))
sketch9.addConstraint(Sketcher.Constraint("DistanceX", 7, 1, 7, 2, Q("5.389714 mm")))
sketch9.addConstraint(Sketcher.Constraint("DistanceY", 3, 1, 3, 2, Q("0.906885 mm")))
sketch9.addConstraint(Sketcher.Constraint("DistanceY", 5, 1, 5, 2, Q("1.157458 mm")))
sketch9.addConstraint(Sketcher.Constraint("DistanceX", 2, 2, -1, 1, Q("13.186489 mm")))
pad9 = body9.newObject("PartDesign::Pad", "Pad008")
pad9.Profile = sketch9
pad9.setExpression("Length", "Params.pad9_length")
pad9.Reversed = True
body.AllowCompound = True
doc.recompute()

boolean = body.newObject("PartDesign::Boolean", "Boolean")
boolean.Type = "Fuse"
boolean.addObjects([body2])
doc.recompute()

boolean2 = body.newObject("PartDesign::Boolean", "Boolean001")
boolean2.Type = "Fuse"
boolean2.addObjects([body3])
doc.recompute()

boolean3 = body.newObject("PartDesign::Boolean", "Boolean002")
boolean3.Type = "Fuse"
boolean3.addObjects([body4])
doc.recompute()

boolean4 = body.newObject("PartDesign::Boolean", "Boolean003")
boolean4.Type = "Fuse"
boolean4.addObjects([body5])
doc.recompute()

boolean5 = body.newObject("PartDesign::Boolean", "Boolean004")
boolean5.Type = "Fuse"
boolean5.addObjects([body6])
doc.recompute()

boolean6 = body.newObject("PartDesign::Boolean", "Boolean005")
boolean6.Type = "Fuse"
boolean6.addObjects([body7])
doc.recompute()

boolean7 = body.newObject("PartDesign::Boolean", "Boolean006")
boolean7.Type = "Fuse"
boolean7.addObjects([body8])
doc.recompute()

boolean8 = body.newObject("PartDesign::Boolean", "Boolean007")
boolean8.Type = "Fuse"
boolean8.addObjects([body9])

# Sketch on XZ plane
sketch10 = body.newObject("Sketcher::SketchObject", "Sketch009")
sketch10.AttachmentSupport = (doc.getObject("XZ_Plane"), [""])
sketch10.MapMode = "FlatFace"
sketch10.AttachmentOffset = App.Placement(Vector(0, 0, -5), App.Rotation())
sketch10.addGeometry(Part.LineSegment(Vector(-20.052023, -10, 0), Vector(-20.052023, 10, 0)), False)
sketch10.addGeometry(Part.LineSegment(Vector(-20.052023, 10, 0), Vector(20, 10, 0)), False)
sketch10.addGeometry(Part.LineSegment(Vector(20, 10, 0), Vector(20, -10, 0)), False)
sketch10.addGeometry(Part.LineSegment(Vector(20, -10, 0), Vector(-20.052023, -10, 0)), False)
sketch10.addConstraint(Sketcher.Constraint("Coincident", 0, 2, 1, 1))
sketch10.addConstraint(Sketcher.Constraint("Coincident", 1, 2, 2, 1))
sketch10.addConstraint(Sketcher.Constraint("Coincident", 2, 2, 3, 1))
sketch10.addConstraint(Sketcher.Constraint("Coincident", 3, 2, 0, 1))
sketch10.addConstraint(Sketcher.Constraint("Vertical", 0))
sketch10.addConstraint(Sketcher.Constraint("Horizontal", 1))
sketch10.addConstraint(Sketcher.Constraint("Vertical", 2))
sketch10.addConstraint(Sketcher.Constraint("Horizontal", 3))
sketch10.addConstraint(Sketcher.Constraint("DistanceY", 0, 1, 0, 2, Q("20 mm")))
sketch10.addConstraint(Sketcher.Constraint("DistanceY", -1, 1, 0, 2, Q("10 mm")))
sketch10.addConstraint(Sketcher.Constraint("DistanceX", -1, 1, 1, 2, Q("20 mm")))
sketch10.addConstraint(Sketcher.Constraint("DistanceX", 1, 1, 1, 2, Q("40.052023 mm")))
sketch10.setExpression("Constraints[8]", "Params.sketch10_height")
pad10 = body.newObject("PartDesign::Pad", "Pad009")
pad10.Profile = sketch10
pad10.setExpression("Length", "Params.pad10_length")
pad10.Reversed = True
doc.recompute()

fillet = body.newObject("PartDesign::Fillet", "Fillet")
fillet.Base = (pad10, edges_at(pad10, [
    (-20.052, 8, 0),
    (-0.026, 8, 10),
    (20, 8, 0),
    (-0.026, 8, -10),
]))
fillet.setExpression("Radius", "Params.fillet_radius")

doc.recompute()
